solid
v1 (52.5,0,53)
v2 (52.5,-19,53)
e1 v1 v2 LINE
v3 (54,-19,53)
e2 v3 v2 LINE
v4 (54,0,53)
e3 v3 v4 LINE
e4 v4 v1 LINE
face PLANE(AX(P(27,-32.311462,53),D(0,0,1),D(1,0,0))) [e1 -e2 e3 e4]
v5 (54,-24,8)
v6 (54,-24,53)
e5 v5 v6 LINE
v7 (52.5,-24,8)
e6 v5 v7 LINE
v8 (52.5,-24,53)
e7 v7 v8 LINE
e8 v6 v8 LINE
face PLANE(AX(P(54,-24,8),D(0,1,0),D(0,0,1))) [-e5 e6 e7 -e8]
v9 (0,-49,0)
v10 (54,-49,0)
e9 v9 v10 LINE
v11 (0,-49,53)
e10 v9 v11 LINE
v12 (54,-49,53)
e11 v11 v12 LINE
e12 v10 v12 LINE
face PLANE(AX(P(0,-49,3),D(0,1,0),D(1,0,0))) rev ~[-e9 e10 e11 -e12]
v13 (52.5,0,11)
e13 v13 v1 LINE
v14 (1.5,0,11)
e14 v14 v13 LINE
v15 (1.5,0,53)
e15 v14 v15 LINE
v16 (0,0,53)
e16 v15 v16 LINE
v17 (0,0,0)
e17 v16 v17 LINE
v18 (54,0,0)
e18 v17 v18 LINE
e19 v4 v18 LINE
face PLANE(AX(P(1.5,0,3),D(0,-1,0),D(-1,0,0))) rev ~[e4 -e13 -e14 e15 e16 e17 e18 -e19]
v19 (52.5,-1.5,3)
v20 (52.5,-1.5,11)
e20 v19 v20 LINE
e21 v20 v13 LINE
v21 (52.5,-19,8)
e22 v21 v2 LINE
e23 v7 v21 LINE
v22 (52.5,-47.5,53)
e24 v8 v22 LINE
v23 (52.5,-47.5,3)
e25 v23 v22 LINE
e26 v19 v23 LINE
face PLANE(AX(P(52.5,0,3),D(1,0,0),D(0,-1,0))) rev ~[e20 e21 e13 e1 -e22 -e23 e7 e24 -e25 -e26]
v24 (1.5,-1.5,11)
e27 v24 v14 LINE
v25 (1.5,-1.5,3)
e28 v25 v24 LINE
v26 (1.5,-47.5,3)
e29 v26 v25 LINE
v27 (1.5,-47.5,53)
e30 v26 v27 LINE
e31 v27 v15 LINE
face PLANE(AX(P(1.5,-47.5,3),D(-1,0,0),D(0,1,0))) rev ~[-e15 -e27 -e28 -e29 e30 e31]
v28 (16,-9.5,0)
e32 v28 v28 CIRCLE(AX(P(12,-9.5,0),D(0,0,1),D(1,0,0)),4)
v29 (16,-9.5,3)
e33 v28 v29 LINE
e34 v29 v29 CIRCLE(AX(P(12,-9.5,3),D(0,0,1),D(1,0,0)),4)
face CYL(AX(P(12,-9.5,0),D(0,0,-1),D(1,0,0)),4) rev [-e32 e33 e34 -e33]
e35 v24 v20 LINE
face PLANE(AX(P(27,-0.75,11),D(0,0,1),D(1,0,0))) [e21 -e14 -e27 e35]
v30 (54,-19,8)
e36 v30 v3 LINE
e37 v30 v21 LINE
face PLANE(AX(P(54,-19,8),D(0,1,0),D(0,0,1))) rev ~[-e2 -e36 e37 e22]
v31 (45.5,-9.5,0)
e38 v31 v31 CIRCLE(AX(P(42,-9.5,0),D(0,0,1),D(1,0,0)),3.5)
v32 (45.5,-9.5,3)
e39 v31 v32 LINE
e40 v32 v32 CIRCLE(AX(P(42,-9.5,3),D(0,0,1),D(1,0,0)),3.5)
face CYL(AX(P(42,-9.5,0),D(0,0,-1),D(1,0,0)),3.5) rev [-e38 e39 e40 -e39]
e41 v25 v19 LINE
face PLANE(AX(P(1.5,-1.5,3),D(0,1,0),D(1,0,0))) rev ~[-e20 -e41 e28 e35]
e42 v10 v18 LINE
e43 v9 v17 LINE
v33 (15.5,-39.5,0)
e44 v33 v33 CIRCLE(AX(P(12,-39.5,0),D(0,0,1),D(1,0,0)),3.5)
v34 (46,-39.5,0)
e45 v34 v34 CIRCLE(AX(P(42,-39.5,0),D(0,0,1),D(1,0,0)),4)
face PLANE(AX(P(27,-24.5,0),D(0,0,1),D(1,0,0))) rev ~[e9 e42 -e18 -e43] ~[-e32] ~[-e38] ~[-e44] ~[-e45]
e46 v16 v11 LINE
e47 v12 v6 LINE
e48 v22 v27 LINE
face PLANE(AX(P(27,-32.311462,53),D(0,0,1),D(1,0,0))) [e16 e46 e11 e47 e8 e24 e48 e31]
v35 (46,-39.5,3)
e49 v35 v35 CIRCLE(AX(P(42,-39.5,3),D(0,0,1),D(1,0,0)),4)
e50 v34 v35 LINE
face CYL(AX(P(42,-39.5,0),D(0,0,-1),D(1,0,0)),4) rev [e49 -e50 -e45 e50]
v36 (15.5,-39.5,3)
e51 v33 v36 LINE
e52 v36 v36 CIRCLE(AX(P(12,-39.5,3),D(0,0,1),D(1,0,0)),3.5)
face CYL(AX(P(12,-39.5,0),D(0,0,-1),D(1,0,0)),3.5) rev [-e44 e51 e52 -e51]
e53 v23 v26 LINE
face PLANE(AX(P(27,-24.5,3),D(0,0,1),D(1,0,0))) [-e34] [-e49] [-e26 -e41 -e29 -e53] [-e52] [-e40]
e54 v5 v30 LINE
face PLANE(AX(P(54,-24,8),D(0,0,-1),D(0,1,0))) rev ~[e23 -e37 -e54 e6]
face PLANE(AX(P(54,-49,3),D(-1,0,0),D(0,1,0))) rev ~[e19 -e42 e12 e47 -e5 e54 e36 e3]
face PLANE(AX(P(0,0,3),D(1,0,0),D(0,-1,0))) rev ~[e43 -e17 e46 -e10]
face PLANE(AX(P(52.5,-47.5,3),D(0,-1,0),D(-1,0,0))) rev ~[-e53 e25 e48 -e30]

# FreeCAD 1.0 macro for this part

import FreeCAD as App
import Part
import Sketcher
from FreeCAD import Vector

doc = App.newDocument("Part")
params = doc.addObject("Spreadsheet::Sheet", "Params")
for row, (alias, value) in enumerate([
    ("sketch1_diameter", "7 mm"),
    ("sketch1_diameter2", "8 mm"),
    ("sketch1_width", "54 mm"),
    ("sketch1_height", "49 mm"),
    ("pad1_length", "3 mm"),
    ("sketch2_width", "54 mm"),
    ("sketch2_width2", "51 mm"),
    ("sketch2_height", "49 mm"),
    ("sketch2_height2", "47.5 mm"),
    ("pad2_length", "50 mm"),
    ("sketch3_width", "5 mm"),
    ("sketch3_height", "45 mm"),
    ("pocket1_length", "1.5 mm"),
    ("sketch4_width", "51 mm"),
    ("sketch4_height", "1.5 mm"),
    ("pad3_length", "8 mm"),
], start=1):
    params.set(f"A{row}", alias)
    params.set(f"B{row}", "=" + value)
    params.setAlias(f"B{row}", alias)

body = doc.addObject("PartDesign::Body", "Body")

sketch1 = body.newObject("Sketcher::SketchObject", "Sketch")
sketch1.AttachmentSupport = (doc.getObject("XY_Plane"), [""])
sketch1.MapMode = "FlatFace"
sketch1.addGeometry([
    Part.LineSegment(Vector(0, 0, 0), Vector(0, -49, 0)),
    Part.LineSegment(Vector(0, -49, 0), Vector(54, -49, 0)),
    Part.LineSegment(Vector(54, -49, 0), Vector(54, 0, 0)),
    Part.LineSegment(Vector(54, 0, 0), Vector(0, 0, 0)),
    Part.Circle(Vector(12, -39.5, 0), Vector(0, 0, 1), 3.5),
    Part.Circle(Vector(42, -39.5, 0), Vector(0, 0, 1), 4),
    Part.Circle(Vector(12, -9.5, 0), Vector(0, 0, 1), 4),
    Part.Circle(Vector(42, -9.5, 0), Vector(0, 0, 1), 3.5),
], False)
sketch1.addConstraint([
    Sketcher.Constraint("Coincident", 0, 2, 1, 1),
    Sketcher.Constraint("Coincident", 1, 2, 2, 1),
    Sketcher.Constraint("Coincident", 2, 2, 3, 1),
    Sketcher.Constraint("Coincident", 3, 2, 0, 1),
    Sketcher.Constraint("Vertical", 0),
    Sketcher.Constraint("Horizontal", 1),
    Sketcher.Constraint("Vertical", 2),
    Sketcher.Constraint("Horizontal", 3),
    Sketcher.Constraint("Coincident", 3, 2, -1, 1),
    Sketcher.Constraint("Equal", 5, 6),
    Sketcher.Constraint("Equal", 4, 7),
    Sketcher.Constraint("Horizontal", 4, 3, 5, 3),
    Sketcher.Constraint("Horizontal", 6, 3, 7, 3),
    Sketcher.Constraint("Vertical", 4, 3, 6, 3),
    Sketcher.Constraint("Vertical", 5, 3, 7, 3),
    Sketcher.Constraint("Diameter", 4, 7.0),
    Sketcher.Constraint("Diameter", 5, 8.0),
    Sketcher.Constraint("DistanceX", 1, 1, 1, 2, 54.0),
    Sketcher.Constraint("DistanceY", 0, 2, 0, 1, 49.0),
    Sketcher.Constraint("DistanceX", -1, 1, 4, 3, 12.0),
    Sketcher.Constraint("DistanceX", -1, 1, 5, 3, 42.0),
    Sketcher.Constraint("DistanceY", 4, 3, 6, 3, 30.0),
    Sketcher.Constraint("DistanceY", 4, 3, -1, 1, 39.5),
])
sketch1.setExpression("Constraints[15]", "Params.sketch1_diameter")
sketch1.setExpression("Constraints[16]", "Params.sketch1_diameter2")
sketch1.setExpression("Constraints[17]", "Params.sketch1_width")
sketch1.setExpression("Constraints[18]", "Params.sketch1_height")
pad1 = body.newObject("PartDesign::Pad", "Pad")
pad1.Profile = sketch1
pad1.setExpression("Length", "Params.pad1_length")

sketch2 = body.newObject("Sketcher::SketchObject", "Sketch001")
sketch2.AttachmentSupport = (doc.getObject("XY_Plane"), [""])
sketch2.MapMode = "FlatFace"
sketch2.AttachmentOffset = App.Placement(Vector(0, 0, 3), App.Rotation())
sketch2.addGeometry([
    Part.LineSegment(Vector(0, 0, 0), Vector(0, -49, 0)),
    Part.LineSegment(Vector(0, -49, 0), Vector(54, -49, 0)),
    Part.LineSegment(Vector(54, -49, 0), Vector(54, 0, 0)),
    Part.LineSegment(Vector(54, 0, 0), Vector(52.5, 0, 0)),
    Part.LineSegment(Vector(52.5, 0, 0), Vector(52.5, -47.5, 0)),
    Part.LineSegment(Vector(52.5, -47.5, 0), Vector(1.5, -47.5, 0)),
    Part.LineSegment(Vector(1.5, -47.5, 0), Vector(1.5, 0, 0)),
    Part.LineSegment(Vector(1.5, 0, 0), Vector(0, 0, 0)),
], False)
sketch2.addConstraint([
    Sketcher.Constraint("Coincident", 0, 2, 1, 1),
    Sketcher.Constraint("Coincident", 1, 2, 2, 1),
    Sketcher.Constraint("Coincident", 2, 2, 3, 1),
    Sketcher.Constraint("Coincident", 3, 2, 4, 1),
    Sketcher.Constraint("Coincident", 4, 2, 5, 1),
    Sketcher.Constraint("Coincident", 5, 2, 6, 1),
    Sketcher.Constraint("Coincident", 6, 2, 7, 1),
    Sketcher.Constraint("Coincident", 7, 2, 0, 1),
    Sketcher.Constraint("Vertical", 0),
    Sketcher.Constraint("Horizontal", 1),
    Sketcher.Constraint("Vertical", 2),
    Sketcher.Constraint("Horizontal", 3),
    Sketcher.Constraint("Vertical", 4),
    Sketcher.Constraint("Horizontal", 5),
    Sketcher.Constraint("Vertical", 6),
    Sketcher.Constraint("Horizontal", 7),
    Sketcher.Constraint("Coincident", 7, 2, -1, 1),
    Sketcher.Constraint("PointOnObject", 2, 2, -1),
    Sketcher.Constraint("Equal", 3, 7),
    Sketcher.Constraint("DistanceX", 1, 1, 1, 2, 54.0),
    Sketcher.Constraint("DistanceX", 5, 2, 5, 1, 51.0),
    Sketcher.Constraint("DistanceY", 0, 2, 0, 1, 49.0),
    Sketcher.Constraint("DistanceY", 4, 2, 4, 1, 47.5),
])
sketch2.setExpression("Constraints[19]", "Params.sketch2_width")
sketch2.setExpression("Constraints[20]", "Params.sketch2_width2")
sketch2.setExpression("Constraints[21]", "Params.sketch2_height")
sketch2.setExpression("Constraints[22]", "Params.sketch2_height2")
pad2 = body.newObject("PartDesign::Pad", "Pad001")
pad2.Profile = sketch2
pad2.setExpression("Length", "Params.pad2_length")

sketch3 = body.newObject("Sketcher::SketchObject", "Sketch002")
sketch3.AttachmentSupport = (doc.getObject("YZ_Plane"), [""])
sketch3.MapMode = "FlatFace"
sketch3.AttachmentOffset = App.Placement(Vector(0, 0, 54), App.Rotation())
sketch3.addGeometry([
    Part.LineSegment(Vector(-24, 53, 0), Vector(-24, 8, 0)),
    Part.LineSegment(Vector(-24, 8, 0), Vector(-19, 8, 0)),
    Part.LineSegment(Vector(-19, 8, 0), Vector(-19, 53, 0)),
    Part.LineSegment(Vector(-19, 53, 0), Vector(-24, 53, 0)),
], False)
sketch3.addConstraint([
    Sketcher.Constraint("Coincident", 0, 2, 1, 1),
    Sketcher.Constraint("Coincident", 1, 2, 2, 1),
    Sketcher.Constraint("Coincident", 2, 2, 3, 1),
    Sketcher.Constraint("Coincident", 3, 2, 0, 1),
    Sketcher.Constraint("Vertical", 0),
    Sketcher.Constraint("Horizontal", 1),
    Sketcher.Constraint("Vertical", 2),
    Sketcher.Constraint("Horizontal", 3),
    Sketcher.Constraint("DistanceX", 1, 1, 1, 2, 5.0),
    Sketcher.Constraint("DistanceY", 0, 2, 0, 1, 45.0),
    Sketcher.Constraint("DistanceX", 0, 2, -1, 1, 24.0),
    Sketcher.Constraint("DistanceY", -1, 1, 0, 2, 8.0),
])
sketch3.setExpression("Constraints[8]", "Params.sketch3_width")
sketch3.setExpression("Constraints[9]", "Params.sketch3_height")
pocket1 = body.newObject("PartDesign::Pocket", "Pocket")
pocket1.Profile = sketch3
pocket1.setExpression("Length", "Params.pocket1_length")

sketch4 = body.newObject("Sketcher::SketchObject", "Sketch003")
sketch4.AttachmentSupport = (doc.getObject("XY_Plane"), [""])
sketch4.MapMode = "FlatFace"
sketch4.AttachmentOffset = App.Placement(Vector(0, 0, 3), App.Rotation())
sketch4.addGeometry([
    Part.LineSegment(Vector(1.5, 0, 0), Vector(1.5, -1.5, 0)),
    Part.LineSegment(Vector(1.5, -1.5, 0), Vector(52.5, -1.5, 0)),
    Part.LineSegment(Vector(52.5, -1.5, 0), Vector(52.5, 0, 0)),
    Part.LineSegment(Vector(52.5, 0, 0), Vector(1.5, 0, 0)),
], False)
sketch4.addConstraint([
    Sketcher.Constraint("Coincident", 0, 2, 1, 1),
    Sketcher.Constraint("Coincident", 1, 2, 2, 1),
    Sketcher.Constraint("Coincident", 2, 2, 3, 1),
    Sketcher.Constraint("Coincident", 3, 2, 0, 1),
    Sketcher.Constraint("Vertical", 0),
    Sketcher.Constraint("Horizontal", 1),
    Sketcher.Constraint("Vertical", 2),
    Sketcher.Constraint("Horizontal", 3),
    Sketcher.Constraint("PointOnObject", 2, 2, -1),
    Sketcher.Constraint("DistanceX", 1, 1, 1, 2, 51.0),
    Sketcher.Constraint("DistanceY", 0, 2, 0, 1, 1.5),
    Sketcher.Constraint("DistanceX", -1, 1, 0, 2, 1.5),
])
sketch4.setExpression("Constraints[9]", "Params.sketch4_width")
sketch4.setExpression("Constraints[10]", "Params.sketch4_height")
pad3 = body.newObject("PartDesign::Pad", "Pad002")
pad3.Profile = sketch4
pad3.setExpression("Length", "Params.pad3_length")

doc.recompute()
